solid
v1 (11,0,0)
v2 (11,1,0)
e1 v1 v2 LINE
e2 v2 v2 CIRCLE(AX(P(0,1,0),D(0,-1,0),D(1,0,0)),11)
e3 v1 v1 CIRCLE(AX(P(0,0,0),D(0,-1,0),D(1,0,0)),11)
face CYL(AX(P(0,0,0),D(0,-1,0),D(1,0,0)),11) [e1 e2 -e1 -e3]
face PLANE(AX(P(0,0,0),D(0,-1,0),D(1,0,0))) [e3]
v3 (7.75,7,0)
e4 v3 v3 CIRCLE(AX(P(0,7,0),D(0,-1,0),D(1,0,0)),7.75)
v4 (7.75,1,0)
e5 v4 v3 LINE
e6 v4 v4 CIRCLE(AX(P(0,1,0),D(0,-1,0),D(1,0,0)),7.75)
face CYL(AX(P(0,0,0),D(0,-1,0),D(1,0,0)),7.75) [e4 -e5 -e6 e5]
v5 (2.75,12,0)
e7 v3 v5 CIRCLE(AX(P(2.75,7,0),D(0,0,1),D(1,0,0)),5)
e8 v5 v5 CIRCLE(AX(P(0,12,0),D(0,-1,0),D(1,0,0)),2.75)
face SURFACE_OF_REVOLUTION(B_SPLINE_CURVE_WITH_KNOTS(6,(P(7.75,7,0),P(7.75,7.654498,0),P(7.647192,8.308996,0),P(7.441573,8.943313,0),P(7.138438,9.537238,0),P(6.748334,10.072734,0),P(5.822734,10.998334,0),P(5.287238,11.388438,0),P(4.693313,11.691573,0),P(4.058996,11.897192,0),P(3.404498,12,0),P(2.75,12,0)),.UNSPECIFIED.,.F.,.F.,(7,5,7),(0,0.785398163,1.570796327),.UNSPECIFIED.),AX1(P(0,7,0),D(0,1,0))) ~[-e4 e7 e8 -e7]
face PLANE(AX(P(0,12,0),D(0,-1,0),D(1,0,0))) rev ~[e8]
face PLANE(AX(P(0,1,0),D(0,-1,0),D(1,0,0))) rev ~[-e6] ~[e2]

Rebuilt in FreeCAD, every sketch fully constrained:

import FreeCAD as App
import Part
import Sketcher


def edges_at(feature, points):
    """Names of the edges that pass closest to the given points."""
    edges = feature.Shape.Edges
    near = lambda p: min(range(len(edges)), key=lambda i: edges[i].distToShape(Part.Vertex(*p))[0])
    return sorted({f"Edge{near(p) + 1}" for p in points})

doc = App.newDocument("Part")
body = doc.addObject("PartDesign::Body", "Body")

sketch1 = body.newObject("Sketcher::SketchObject", "Sketch")
sketch1.AttachmentSupport = (doc.getObject("XZ_Plane"), [""])
sketch1.MapMode = "FlatFace"
sketch1.addGeometry(Part.Circle(App.Vector(0, 0, 0), App.Vector(0, 0, 1), 7.75), False)
sketch1.addConstraint([
    Sketcher.Constraint("Coincident", 0, 3, -1, 1),
    Sketcher.Constraint("Diameter", 0, 15.5),
])
pad1 = body.newObject("PartDesign::Pad", "Pad")
pad1.Profile = sketch1
pad1.Length = 12
pad1.Reversed = True

sketch2 = body.newObject("Sketcher::SketchObject", "Sketch001")
sketch2.AttachmentSupport = (doc.getObject("XZ_Plane"), [""])
sketch2.MapMode = "FlatFace"
sketch2.addGeometry([
    Part.Circle(App.Vector(0, 0, 0), App.Vector(0, 0, 1), 11),
    Part.Circle(App.Vector(0, 0, 0), App.Vector(0, 0, 1), 7.75),
], False)
sketch2.addConstraint([
    Sketcher.Constraint("Coincident", 0, 3, -1, 1),
    Sketcher.Constraint("Coincident", 1, 3, -1, 1),
    Sketcher.Constraint("Diameter", 0, 22.0),
    Sketcher.Constraint("Diameter", 1, 15.5),
])
pad2 = body.newObject("PartDesign::Pad", "Pad001")
pad2.Profile = sketch2
pad2.Length = 1
pad2.Reversed = True
doc.recompute()

fillet = body.newObject("PartDesign::Fillet", "Fillet")
fillet.Base = (pad2, edges_at(pad2, [(-7.75, 12, 0)]))
fillet.Radius = 5

doc.recompute()
